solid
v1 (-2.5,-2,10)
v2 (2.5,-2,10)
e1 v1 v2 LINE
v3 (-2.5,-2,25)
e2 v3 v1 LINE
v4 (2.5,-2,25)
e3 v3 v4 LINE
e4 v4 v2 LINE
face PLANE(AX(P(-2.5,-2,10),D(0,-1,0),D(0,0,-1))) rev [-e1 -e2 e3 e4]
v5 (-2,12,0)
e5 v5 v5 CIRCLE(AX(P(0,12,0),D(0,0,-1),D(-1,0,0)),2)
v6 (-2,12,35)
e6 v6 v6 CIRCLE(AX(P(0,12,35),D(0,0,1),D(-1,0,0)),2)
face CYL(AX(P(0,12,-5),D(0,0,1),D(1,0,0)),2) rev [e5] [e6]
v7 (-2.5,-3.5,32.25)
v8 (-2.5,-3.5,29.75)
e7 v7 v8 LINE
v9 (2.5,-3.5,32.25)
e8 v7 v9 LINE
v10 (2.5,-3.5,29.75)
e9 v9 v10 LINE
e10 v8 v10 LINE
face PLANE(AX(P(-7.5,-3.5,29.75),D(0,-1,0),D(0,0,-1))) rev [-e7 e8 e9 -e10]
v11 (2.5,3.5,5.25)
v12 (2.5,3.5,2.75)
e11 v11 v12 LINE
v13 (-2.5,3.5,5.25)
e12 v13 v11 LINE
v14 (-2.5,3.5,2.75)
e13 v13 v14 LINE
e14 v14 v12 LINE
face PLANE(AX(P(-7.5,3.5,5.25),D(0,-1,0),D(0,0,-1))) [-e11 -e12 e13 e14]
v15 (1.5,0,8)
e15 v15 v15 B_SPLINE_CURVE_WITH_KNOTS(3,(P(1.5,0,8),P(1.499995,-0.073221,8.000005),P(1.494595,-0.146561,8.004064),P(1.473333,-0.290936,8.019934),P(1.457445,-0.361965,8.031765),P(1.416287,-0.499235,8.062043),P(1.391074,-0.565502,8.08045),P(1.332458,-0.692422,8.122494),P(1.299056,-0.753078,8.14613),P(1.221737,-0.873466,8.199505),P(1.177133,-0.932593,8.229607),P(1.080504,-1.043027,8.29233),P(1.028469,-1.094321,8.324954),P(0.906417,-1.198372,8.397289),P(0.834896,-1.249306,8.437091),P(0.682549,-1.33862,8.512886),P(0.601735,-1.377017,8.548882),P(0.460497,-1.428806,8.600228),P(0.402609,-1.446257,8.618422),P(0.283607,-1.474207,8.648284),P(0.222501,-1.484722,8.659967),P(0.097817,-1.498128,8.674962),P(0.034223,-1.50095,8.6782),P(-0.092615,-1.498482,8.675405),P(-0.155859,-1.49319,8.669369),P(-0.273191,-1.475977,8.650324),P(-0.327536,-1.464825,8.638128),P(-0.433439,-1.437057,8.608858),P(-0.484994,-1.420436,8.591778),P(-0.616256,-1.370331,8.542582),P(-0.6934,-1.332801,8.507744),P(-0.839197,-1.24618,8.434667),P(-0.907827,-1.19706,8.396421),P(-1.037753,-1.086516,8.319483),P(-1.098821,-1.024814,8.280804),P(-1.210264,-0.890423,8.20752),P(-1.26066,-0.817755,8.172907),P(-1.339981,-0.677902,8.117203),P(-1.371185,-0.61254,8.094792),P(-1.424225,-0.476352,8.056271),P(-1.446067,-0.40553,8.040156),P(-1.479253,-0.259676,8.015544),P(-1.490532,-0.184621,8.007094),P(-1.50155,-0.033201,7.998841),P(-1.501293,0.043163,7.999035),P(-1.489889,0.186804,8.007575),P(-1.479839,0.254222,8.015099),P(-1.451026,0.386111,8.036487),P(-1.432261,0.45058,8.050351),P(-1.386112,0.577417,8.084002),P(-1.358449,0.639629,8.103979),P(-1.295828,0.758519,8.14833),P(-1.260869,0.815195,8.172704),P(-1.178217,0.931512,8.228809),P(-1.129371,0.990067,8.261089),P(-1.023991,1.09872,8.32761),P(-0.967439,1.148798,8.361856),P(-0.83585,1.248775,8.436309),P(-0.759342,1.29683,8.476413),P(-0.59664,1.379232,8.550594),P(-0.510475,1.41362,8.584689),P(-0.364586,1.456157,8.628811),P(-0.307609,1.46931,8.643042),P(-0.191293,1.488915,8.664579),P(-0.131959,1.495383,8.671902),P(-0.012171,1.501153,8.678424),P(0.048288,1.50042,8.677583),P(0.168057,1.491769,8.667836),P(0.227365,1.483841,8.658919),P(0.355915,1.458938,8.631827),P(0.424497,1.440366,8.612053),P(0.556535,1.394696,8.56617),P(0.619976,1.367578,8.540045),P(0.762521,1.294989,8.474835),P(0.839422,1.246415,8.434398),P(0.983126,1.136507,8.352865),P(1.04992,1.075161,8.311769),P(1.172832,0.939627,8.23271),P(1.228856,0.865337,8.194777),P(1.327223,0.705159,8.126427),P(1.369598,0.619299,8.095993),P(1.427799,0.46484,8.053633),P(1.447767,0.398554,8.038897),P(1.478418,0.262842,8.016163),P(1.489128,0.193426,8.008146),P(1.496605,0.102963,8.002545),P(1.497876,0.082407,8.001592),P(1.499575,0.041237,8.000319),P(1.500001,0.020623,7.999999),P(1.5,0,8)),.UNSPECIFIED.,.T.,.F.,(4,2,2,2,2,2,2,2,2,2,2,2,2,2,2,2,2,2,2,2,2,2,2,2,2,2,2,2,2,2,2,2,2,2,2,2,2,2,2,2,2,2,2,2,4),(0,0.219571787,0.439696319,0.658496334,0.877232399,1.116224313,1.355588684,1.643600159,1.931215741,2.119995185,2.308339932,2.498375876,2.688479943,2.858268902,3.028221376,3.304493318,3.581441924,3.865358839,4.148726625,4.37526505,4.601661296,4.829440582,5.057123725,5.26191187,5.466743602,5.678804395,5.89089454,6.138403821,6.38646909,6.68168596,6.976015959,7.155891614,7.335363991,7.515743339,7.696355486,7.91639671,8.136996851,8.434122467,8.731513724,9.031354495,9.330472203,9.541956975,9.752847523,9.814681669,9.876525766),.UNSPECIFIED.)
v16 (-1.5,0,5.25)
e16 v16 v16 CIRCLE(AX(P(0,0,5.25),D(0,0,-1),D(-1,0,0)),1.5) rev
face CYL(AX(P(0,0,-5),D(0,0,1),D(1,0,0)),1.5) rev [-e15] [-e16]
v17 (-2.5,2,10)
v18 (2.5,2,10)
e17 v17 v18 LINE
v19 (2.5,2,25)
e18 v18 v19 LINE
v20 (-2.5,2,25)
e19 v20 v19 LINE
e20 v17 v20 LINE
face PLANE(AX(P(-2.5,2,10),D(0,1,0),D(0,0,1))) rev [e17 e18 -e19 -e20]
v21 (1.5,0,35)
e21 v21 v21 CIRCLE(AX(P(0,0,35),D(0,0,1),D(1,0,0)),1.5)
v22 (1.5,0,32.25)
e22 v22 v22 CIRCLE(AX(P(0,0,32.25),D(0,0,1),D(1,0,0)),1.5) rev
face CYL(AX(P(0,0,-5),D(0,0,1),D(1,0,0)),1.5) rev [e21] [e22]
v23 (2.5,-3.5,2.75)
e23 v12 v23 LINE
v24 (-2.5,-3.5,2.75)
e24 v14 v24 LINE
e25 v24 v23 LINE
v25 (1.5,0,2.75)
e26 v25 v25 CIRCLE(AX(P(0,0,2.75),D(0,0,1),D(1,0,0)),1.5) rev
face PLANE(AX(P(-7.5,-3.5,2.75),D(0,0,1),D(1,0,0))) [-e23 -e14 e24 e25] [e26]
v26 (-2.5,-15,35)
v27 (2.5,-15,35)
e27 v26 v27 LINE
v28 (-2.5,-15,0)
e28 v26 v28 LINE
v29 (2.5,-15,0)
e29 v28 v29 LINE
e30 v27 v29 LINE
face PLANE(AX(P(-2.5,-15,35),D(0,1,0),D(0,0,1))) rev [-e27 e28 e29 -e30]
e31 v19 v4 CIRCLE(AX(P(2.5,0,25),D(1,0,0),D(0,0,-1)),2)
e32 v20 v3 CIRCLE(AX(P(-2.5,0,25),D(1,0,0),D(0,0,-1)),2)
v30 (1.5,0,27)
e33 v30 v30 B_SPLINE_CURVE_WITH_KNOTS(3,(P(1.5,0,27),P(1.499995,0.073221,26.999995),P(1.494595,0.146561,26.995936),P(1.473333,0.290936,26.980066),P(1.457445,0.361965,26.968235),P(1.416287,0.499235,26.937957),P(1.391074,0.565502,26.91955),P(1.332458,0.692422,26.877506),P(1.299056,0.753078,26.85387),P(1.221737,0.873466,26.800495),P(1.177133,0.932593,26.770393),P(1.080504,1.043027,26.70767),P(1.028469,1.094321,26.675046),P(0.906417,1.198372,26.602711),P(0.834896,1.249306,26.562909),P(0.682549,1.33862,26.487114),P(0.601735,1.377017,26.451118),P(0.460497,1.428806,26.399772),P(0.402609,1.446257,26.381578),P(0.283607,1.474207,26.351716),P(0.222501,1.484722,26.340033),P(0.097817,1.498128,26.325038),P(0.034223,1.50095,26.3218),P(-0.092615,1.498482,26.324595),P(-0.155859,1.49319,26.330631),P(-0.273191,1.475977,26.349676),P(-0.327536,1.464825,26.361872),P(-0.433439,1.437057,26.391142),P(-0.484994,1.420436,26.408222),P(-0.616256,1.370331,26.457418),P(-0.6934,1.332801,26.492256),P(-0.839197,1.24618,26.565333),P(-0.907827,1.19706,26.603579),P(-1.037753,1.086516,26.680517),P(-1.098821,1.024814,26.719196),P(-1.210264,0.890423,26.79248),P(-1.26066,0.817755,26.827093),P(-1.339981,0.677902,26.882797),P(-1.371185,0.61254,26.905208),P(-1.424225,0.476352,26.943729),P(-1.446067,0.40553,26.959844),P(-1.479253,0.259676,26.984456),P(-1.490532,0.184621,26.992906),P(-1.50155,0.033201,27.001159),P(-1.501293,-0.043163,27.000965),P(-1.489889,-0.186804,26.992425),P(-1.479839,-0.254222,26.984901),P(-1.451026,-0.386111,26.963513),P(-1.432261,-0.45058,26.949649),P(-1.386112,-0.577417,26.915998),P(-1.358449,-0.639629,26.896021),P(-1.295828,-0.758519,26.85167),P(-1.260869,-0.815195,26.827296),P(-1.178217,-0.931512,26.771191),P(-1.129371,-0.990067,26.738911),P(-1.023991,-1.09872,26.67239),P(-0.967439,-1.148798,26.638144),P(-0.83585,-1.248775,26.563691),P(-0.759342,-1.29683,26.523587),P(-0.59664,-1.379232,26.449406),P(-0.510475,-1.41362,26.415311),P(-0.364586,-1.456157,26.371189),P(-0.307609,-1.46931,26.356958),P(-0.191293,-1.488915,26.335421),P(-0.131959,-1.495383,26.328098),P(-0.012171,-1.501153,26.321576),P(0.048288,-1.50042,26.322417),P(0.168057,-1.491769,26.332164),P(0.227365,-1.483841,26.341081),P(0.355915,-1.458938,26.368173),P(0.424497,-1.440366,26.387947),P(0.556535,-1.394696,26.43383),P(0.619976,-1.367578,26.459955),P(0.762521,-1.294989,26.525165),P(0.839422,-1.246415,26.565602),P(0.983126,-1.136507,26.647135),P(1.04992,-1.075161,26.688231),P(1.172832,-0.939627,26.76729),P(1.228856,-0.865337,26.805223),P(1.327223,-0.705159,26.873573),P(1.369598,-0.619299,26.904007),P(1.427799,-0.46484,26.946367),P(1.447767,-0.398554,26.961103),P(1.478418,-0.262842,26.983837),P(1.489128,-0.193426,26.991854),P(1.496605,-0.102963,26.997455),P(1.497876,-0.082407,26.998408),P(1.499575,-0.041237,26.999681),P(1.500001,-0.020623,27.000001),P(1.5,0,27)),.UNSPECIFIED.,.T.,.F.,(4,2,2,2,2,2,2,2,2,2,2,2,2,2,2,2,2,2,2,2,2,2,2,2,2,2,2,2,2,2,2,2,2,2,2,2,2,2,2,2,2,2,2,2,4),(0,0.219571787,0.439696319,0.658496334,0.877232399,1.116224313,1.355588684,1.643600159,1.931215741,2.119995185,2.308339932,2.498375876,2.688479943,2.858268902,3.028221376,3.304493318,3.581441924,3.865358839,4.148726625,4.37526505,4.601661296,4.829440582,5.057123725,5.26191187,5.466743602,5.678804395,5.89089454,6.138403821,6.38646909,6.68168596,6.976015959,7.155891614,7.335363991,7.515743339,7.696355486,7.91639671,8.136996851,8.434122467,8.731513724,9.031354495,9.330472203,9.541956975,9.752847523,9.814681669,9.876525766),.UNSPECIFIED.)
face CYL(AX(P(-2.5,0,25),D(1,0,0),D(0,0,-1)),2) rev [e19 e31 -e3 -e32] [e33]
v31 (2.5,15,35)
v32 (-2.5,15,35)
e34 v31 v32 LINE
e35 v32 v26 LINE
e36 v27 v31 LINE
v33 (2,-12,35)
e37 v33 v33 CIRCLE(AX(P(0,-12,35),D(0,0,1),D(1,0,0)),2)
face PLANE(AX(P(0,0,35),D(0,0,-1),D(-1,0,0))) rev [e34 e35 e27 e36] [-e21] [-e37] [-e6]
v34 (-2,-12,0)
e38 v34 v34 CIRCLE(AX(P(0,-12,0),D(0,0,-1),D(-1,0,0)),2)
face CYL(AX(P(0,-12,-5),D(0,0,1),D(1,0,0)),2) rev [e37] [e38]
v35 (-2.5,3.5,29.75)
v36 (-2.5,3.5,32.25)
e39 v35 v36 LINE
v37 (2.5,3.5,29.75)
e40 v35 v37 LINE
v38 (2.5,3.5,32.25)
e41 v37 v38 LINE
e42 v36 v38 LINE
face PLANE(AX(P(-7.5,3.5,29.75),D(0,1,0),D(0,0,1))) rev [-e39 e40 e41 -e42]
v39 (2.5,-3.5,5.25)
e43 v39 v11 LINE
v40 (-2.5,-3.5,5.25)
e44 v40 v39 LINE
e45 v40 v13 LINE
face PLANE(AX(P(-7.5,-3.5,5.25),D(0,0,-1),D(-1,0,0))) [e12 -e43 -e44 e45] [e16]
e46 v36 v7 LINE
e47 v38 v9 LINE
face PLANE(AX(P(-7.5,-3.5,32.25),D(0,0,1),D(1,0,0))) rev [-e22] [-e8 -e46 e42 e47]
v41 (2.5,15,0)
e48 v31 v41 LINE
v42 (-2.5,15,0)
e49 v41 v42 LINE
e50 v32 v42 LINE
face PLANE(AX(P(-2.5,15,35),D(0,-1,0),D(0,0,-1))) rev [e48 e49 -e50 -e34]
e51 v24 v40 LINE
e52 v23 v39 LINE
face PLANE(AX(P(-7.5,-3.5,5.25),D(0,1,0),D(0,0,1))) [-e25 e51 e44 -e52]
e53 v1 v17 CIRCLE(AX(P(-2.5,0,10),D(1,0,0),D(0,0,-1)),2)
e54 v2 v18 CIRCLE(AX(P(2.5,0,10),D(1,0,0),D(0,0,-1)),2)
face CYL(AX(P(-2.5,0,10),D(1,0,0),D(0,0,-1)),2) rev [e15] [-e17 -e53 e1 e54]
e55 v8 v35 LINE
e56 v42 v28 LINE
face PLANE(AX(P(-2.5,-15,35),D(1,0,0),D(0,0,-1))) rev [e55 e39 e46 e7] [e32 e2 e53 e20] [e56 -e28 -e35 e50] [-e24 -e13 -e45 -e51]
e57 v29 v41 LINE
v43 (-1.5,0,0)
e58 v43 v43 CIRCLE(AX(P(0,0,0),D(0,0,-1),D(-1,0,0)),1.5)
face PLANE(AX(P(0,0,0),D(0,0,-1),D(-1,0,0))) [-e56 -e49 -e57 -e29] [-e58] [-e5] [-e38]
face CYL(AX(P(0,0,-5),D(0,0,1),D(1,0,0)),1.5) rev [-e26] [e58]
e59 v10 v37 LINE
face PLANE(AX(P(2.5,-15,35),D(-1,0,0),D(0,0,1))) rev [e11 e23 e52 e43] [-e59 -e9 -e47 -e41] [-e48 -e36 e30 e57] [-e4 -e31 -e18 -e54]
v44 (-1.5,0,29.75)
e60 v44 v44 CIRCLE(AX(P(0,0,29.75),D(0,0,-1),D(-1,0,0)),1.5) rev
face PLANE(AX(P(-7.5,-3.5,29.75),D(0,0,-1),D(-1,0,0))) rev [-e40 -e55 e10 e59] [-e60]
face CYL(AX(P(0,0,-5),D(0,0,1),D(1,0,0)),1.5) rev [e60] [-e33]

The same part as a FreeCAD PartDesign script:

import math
import FreeCAD as App
import Part
import Sketcher
Q = App.Units.Quantity


def add_polygon(sketch, points):
    """Adds a closed chain of lines whose ends are joined by coincident constraints."""
    first, n = sketch.GeometryCount, len(points)
    for a, b in zip(points, points[1:] + points[:1]):
        sketch.addGeometry(Part.LineSegment(App.Vector(*a, 0), App.Vector(*b, 0)), False)
    for i in range(n):
        sketch.addConstraint(Sketcher.Constraint("Coincident", first + i, 2, first + (i + 1) % n, 1))

doc = App.newDocument("Part")
body = doc.addObject("PartDesign::Body", "Body")

sketch1 = body.newObject("Sketcher::SketchObject", "Sketch")
sketch1.AttachmentSupport = (doc.getObject("XY_Plane"), [""])
sketch1.MapMode = "FlatFace"
add_polygon(sketch1, [(-2, 15), (-2, -15), (2, -15), (2, 15)])
sketch1.addConstraint(Sketcher.Constraint("Vertical", 0))
sketch1.addConstraint(Sketcher.Constraint("Horizontal", 1))
sketch1.addConstraint(Sketcher.Constraint("Vertical", 2))
sketch1.addConstraint(Sketcher.Constraint("Horizontal", 3))
sketch1.addConstraint(Sketcher.Constraint("Symmetric", 0, 2, 2, 2, -1, 1))
sketch1.addConstraint(Sketcher.Constraint("DistanceX", 1, 1, 1, 2, Q("5 mm")))
sketch1.addConstraint(Sketcher.Constraint("DistanceY", 0, 2, 0, 1, Q("30 mm")))
pad1 = body.newObject("PartDesign::Pad", "Pad")
pad1.Profile = sketch1
pad1.Length = 35

sketch2 = body.newObject("Sketcher::SketchObject", "Sketch001")
sketch2.AttachmentSupport = (doc.getObject("YZ_Plane"), [""])
sketch2.MapMode = "FlatFace"
sketch2.AttachmentOffset = App.Placement(App.Vector(0, 0, 2.5), App.Rotation())
sketch2.addGeometry(Part.LineSegment(App.Vector(-2, 25, 0), App.Vector(-2, 10, 0)), False)
sketch2.addGeometry(Part.ArcOfCircle(Part.Circle(App.Vector(0, 10, 0), App.Vector(0, 0, 1), 2), math.radians(180), math.radians(360)), False)
sketch2.addGeometry(Part.LineSegment(App.Vector(2, 10, 0), App.Vector(2, 25, 0)), False)
sketch2.addGeometry(Part.ArcOfCircle(Part.Circle(App.Vector(0, 25, 0), App.Vector(0, 0, 1), 2), math.radians(0), math.radians(180)), False)
sketch2.addConstraint(Sketcher.Constraint("Tangent", 0, 2, 1, 1))
sketch2.addConstraint(Sketcher.Constraint("Tangent", 1, 2, 2, 1))
sketch2.addConstraint(Sketcher.Constraint("Tangent", 2, 2, 3, 1))
sketch2.addConstraint(Sketcher.Constraint("Tangent", 3, 2, 0, 1))
sketch2.addConstraint(Sketcher.Constraint("Vertical", 0))
sketch2.addConstraint(Sketcher.Constraint("Vertical", 2))
sketch2.addConstraint(Sketcher.Constraint("PointOnObject", 1, 3, -2))
sketch2.addConstraint(Sketcher.Constraint("Radius", 1, Q("2 mm")))
sketch2.addConstraint(Sketcher.Constraint("DistanceY", 0, 2, 0, 1, Q("15 mm")))
sketch2.addConstraint(Sketcher.Constraint("DistanceY", -1, 1, 1, 3, Q("10 mm")))
pocket1 = body.newObject("PartDesign::Pocket", "Pocket")
pocket1.Profile = sketch2
pocket1.Type = "ThroughAll"

sketch3 = body.newObject("Sketcher::SketchObject", "Sketch002")
sketch3.AttachmentSupport = (doc.getObject("XY_Plane"), [""])
sketch3.MapMode = "FlatFace"
sketch3.AttachmentOffset = App.Placement(App.Vector(0, 0, 35), App.Rotation())
sketch3.addGeometry(Part.Circle(App.Vector(0, 0, 0), App.Vector(0, 0, 1), 1.5), False)
sketch3.addGeometry(Part.Circle(App.Vector(0, -12, 0), App.Vector(0, 0, 1), 2), False)
sketch3.addGeometry(Part.Circle(App.Vector(0, 12, 0), App.Vector(0, 0, 1), 2), False)
sketch3.addConstraint(Sketcher.Constraint("Coincident", 0, 3, -1, 1))
sketch3.addConstraint(Sketcher.Constraint("Equal", 1, 2))
sketch3.addConstraint(Sketcher.Constraint("Symmetric", 1, 3, 2, 3, -1, 1))
sketch3.addConstraint(Sketcher.Constraint("PointOnObject", 1, 3, -2))
sketch3.addConstraint(Sketcher.Constraint("Diameter", 0, Q("3 mm")))
sketch3.addConstraint(Sketcher.Constraint("Diameter", 1, Q("4 mm")))
sketch3.addConstraint(Sketcher.Constraint("DistanceY", 1, 3, -1, 1, Q("12 mm")))
pocket2 = body.newObject("PartDesign::Pocket", "Pocket001")
pocket2.Profile = sketch3
pocket2.Length = 40

sketch4 = body.newObject("Sketcher::SketchObject", "Sketch003")
sketch4.AttachmentSupport = (doc.getObject("YZ_Plane"), [""])
sketch4.MapMode = "FlatFace"
sketch4.AttachmentOffset = App.Placement(App.Vector(0, 0, 2.5), App.Rotation())
add_polygon(sketch4, [(3.5, 32.2), (-3.5, 32.2), (-3.5, 29.8), (3.5, 29.8)])
sketch4.addConstraint(Sketcher.Constraint("Horizontal", 0))
sketch4.addConstraint(Sketcher.Constraint("Vertical", 1))
sketch4.addConstraint(Sketcher.Constraint("Horizontal", 2))
sketch4.addConstraint(Sketcher.Constraint("Vertical", 3))
sketch4.addConstraint(Sketcher.Constraint("DistanceX", 0, 2, 0, 1, Q("7 mm")))
sketch4.addConstraint(Sketcher.Constraint("DistanceY", 1, 2, 1, 1, Q("2.5 mm")))
sketch4.addConstraint(Sketcher.Constraint("DistanceX", 0, 2, -1, 1, Q("3.5 mm")))
sketch4.addConstraint(Sketcher.Constraint("DistanceY", -1, 1, 0, 2, Q("32.25 mm")))
pocket3 = body.newObject("PartDesign::Pocket", "Pocket002")
pocket3.Profile = sketch4
pocket3.Length = 10
doc.recompute()

datumplane = body.newObject("PartDesign::Plane", "DatumPlane")
datumplane.AttachmentSupport = (doc.getObject("XY_Plane"), [""])
datumplane.MapMode = "FlatFace"
datumplane.AttachmentOffset = App.Placement(App.Vector(0, 0, 17.5), App.Rotation())
mirrored = body.newObject("PartDesign::Mirrored", "Mirrored")
mirrored.Originals = [pocket3]
mirrored.MirrorPlane = (datumplane, [""])
body.Tip = mirrored

doc.recompute()
